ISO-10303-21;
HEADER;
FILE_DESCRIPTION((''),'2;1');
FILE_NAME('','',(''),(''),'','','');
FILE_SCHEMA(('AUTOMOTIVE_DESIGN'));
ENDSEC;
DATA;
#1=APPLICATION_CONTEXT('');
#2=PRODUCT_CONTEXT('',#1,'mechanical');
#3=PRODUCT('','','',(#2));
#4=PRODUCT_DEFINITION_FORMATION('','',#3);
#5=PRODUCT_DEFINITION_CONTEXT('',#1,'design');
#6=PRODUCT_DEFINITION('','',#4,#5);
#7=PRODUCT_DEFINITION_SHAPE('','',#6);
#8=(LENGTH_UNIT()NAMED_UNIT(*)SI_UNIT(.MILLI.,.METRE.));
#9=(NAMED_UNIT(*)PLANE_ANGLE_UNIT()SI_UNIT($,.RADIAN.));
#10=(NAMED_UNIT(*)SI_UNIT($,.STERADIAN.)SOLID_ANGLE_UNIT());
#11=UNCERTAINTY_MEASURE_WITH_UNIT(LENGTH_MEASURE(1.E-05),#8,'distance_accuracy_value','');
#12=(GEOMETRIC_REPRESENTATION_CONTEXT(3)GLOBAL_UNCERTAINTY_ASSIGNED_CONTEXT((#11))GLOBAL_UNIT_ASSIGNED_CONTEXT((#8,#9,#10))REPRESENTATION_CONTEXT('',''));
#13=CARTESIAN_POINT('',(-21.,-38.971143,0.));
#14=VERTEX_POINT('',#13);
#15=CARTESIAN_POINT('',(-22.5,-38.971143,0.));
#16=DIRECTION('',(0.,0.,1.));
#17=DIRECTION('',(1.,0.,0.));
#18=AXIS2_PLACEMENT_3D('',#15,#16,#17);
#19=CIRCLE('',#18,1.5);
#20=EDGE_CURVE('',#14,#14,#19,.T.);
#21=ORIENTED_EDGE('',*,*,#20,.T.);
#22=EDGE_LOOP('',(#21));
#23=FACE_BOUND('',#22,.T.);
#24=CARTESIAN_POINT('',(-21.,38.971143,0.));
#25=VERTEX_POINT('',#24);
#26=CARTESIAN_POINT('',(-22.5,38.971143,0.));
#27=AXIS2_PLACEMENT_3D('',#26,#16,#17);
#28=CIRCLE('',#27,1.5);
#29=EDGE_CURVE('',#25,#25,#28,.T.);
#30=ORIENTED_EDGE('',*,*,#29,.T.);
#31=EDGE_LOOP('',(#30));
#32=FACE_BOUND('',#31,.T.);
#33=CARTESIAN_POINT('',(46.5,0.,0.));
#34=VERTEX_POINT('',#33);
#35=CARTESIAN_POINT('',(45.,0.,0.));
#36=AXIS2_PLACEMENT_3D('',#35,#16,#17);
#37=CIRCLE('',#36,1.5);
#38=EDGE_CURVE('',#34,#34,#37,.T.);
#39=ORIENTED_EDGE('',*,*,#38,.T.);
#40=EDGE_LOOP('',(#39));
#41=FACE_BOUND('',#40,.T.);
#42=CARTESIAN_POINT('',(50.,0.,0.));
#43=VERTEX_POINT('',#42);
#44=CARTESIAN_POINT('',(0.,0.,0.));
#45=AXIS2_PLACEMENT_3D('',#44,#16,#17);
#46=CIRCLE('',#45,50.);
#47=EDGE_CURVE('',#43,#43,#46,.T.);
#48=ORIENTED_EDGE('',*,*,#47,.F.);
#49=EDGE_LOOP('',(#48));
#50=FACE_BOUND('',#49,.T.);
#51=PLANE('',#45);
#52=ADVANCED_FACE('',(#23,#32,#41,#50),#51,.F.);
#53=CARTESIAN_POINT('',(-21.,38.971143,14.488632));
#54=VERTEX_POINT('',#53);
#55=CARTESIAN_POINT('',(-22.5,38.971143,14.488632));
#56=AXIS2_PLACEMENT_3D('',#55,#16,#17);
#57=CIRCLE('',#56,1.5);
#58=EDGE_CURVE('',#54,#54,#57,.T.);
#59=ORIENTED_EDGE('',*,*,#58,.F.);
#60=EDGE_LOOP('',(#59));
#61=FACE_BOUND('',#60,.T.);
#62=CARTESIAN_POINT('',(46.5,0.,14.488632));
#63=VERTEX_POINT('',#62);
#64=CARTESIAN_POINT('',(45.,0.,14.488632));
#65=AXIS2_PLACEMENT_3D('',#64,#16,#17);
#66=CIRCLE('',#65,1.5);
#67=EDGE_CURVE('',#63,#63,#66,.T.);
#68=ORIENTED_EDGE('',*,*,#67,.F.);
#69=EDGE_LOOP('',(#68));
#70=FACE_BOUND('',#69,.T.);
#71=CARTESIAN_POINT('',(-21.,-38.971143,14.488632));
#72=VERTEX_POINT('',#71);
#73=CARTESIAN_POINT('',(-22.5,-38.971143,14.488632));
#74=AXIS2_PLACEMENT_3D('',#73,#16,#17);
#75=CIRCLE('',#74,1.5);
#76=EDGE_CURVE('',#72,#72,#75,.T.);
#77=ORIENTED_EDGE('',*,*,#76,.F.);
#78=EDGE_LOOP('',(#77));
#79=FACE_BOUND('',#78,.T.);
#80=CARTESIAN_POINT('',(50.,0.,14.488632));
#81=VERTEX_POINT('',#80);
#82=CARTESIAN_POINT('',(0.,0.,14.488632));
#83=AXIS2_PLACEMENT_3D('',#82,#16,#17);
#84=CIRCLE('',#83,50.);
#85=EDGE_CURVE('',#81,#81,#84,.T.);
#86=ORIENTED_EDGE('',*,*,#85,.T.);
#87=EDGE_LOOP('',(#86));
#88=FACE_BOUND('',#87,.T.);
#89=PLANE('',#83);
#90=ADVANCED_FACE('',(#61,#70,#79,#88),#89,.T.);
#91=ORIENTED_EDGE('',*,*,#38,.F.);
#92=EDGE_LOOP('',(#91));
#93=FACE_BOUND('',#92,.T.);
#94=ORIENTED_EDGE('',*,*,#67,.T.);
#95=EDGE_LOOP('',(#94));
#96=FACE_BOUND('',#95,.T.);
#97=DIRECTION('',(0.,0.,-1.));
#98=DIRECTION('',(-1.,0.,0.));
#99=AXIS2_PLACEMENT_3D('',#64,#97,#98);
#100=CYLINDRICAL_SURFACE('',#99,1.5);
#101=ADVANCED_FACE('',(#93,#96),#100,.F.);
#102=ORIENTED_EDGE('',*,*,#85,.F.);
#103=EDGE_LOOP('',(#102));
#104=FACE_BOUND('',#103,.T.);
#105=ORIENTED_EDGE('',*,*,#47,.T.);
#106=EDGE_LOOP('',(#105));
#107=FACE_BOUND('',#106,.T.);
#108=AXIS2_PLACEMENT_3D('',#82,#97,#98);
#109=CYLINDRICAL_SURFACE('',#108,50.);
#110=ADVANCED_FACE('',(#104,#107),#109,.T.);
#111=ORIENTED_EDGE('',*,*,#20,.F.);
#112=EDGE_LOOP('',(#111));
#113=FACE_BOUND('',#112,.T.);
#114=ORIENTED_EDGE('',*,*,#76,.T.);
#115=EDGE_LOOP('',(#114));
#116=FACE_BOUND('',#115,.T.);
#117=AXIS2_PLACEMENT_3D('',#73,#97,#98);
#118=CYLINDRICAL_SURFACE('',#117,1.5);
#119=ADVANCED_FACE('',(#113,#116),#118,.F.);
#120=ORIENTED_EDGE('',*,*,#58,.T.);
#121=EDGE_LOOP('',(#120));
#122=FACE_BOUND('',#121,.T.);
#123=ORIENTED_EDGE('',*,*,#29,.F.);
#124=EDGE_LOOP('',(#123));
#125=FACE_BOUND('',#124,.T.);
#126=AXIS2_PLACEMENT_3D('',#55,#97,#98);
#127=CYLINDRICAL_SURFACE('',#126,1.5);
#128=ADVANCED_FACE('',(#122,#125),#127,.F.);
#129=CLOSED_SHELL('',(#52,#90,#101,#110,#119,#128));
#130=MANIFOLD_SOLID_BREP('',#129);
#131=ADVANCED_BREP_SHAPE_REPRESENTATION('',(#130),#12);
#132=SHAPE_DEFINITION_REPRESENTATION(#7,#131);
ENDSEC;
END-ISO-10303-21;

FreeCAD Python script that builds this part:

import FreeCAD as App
import Part
import Sketcher

V = App.Vector
Q = App.Units.Quantity

doc = App.newDocument("Part")
params = doc.addObject("Spreadsheet::Sheet", "Params")
for row, (alias, value) in enumerate([
    ("sketch1_diameter", "100 mm"),
    ("sketch1_diameter2", "3 mm"),
    ("pad1_length", "14.488632 mm"),
], start=1):
    params.set(f"A{row}", alias)
    params.set(f"B{row}", "=" + value)
    params.setAlias(f"B{row}", alias)

body = doc.addObject("PartDesign::Body", "Body")

# Sketch on XY plane
sketch1 = doc.addObject("Sketcher::SketchObject", "Sketch")
body.addObject(sketch1)
sketch1.AttachmentSupport = (doc.XY_Plane, [""])
sketch1.MapMode = "FlatFace"
sketch1.addGeometry([
    Part.Circle(V(0, 0, 0), V(0, 0, 1), 50),
    Part.Circle(V(-22.5, -38.971143, 0), V(0, 0, 1), 1.5),
    Part.Circle(V(-22.5, 38.971143, 0), V(0, 0, 1), 1.5),
    Part.Circle(V(45, 0, 0), V(0, 0, 1), 1.5),
], False)
sketch1.addConstraint([
    Sketcher.Constraint("Coincident", 0, 3, -1, 1),
    Sketcher.Constraint("Equal", 1, 2),
    Sketcher.Constraint("Equal", 2, 3),
    Sketcher.Constraint("Symmetric", 1, 3, 2, 3, -1),
    Sketcher.Constraint("PointOnObject", 3, 3, -1),
    Sketcher.Constraint("Diameter", 0, Q("100 mm")),
    Sketcher.Constraint("Diameter", 1, Q("3 mm")),
    Sketcher.Constraint("DistanceX", -1, 1, 3, 3, Q("45 mm")),
    Sketcher.Constraint("DistanceX", 1, 3, -1, 1, Q("22.5 mm")),
    Sketcher.Constraint("DistanceY", 1, 3, -1, 1, Q("38.971143 mm")),
])
sketch1.setExpression("Constraints[5]", "Params.sketch1_diameter")
sketch1.setExpression("Constraints[6]", "Params.sketch1_diameter2")
pad1 = doc.addObject("PartDesign::Pad", "Pad")
body.addObject(pad1)
pad1.Profile = sketch1
pad1.setExpression("Length", "Params.pad1_length")

doc.recompute()
